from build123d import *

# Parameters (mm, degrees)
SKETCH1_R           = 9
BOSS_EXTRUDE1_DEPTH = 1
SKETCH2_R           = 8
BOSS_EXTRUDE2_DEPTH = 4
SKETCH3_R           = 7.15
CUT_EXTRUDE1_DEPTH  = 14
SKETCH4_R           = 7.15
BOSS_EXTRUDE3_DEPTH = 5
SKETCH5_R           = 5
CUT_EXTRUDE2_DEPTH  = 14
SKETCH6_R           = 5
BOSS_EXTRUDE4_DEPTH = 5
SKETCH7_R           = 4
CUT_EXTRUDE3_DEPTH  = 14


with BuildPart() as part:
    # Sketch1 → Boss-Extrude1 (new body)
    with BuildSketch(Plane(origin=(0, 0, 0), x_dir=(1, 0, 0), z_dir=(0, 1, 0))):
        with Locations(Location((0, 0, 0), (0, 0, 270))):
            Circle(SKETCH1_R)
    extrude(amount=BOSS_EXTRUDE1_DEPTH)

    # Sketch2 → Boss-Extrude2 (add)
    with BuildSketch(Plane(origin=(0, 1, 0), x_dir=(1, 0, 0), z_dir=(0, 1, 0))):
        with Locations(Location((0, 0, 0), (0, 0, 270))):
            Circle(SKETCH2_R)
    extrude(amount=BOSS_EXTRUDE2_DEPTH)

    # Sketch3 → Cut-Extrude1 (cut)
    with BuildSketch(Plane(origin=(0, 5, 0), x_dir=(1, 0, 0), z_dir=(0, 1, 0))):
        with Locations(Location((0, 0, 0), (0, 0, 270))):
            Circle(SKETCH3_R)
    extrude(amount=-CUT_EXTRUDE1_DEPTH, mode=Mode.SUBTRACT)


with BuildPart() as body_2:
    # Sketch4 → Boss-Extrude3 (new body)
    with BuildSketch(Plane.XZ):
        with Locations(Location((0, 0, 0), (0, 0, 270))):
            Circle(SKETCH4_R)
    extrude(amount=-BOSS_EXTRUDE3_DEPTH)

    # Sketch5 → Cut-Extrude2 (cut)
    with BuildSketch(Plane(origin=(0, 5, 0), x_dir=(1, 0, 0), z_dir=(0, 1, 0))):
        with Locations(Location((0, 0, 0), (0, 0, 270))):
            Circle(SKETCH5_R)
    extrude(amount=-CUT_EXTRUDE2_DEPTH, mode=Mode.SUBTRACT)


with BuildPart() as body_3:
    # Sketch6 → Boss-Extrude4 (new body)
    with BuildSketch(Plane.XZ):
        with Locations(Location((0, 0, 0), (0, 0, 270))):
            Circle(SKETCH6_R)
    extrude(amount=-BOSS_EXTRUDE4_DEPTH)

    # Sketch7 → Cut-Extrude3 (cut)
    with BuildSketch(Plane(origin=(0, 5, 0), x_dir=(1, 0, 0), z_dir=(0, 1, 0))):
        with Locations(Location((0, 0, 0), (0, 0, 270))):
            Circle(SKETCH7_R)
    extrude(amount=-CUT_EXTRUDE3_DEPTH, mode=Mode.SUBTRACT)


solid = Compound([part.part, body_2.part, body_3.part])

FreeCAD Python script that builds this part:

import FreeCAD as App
import Part
import Sketcher
from FreeCAD import Vector

doc = App.newDocument("Part")
body = doc.addObject("PartDesign::Body", "Body")

# Sketch on XZ plane
sketch1 = body.newObject("Sketcher::SketchObject", "Sketch")
sketch1.AttachmentSupport = (doc.getObject("XZ_Plane"), [""])
sketch1.MapMode = "FlatFace"
sketch1.addGeometry(Part.Circle(Vector(0, 0, 0), Vector(0, 0, 1), 9), False)
sketch1.addConstraint(Sketcher.Constraint("Coincident", 0, 3, -1, 1))
sketch1.addConstraint(Sketcher.Constraint("Diameter", 0, 18.0))
pad1 = body.newObject("PartDesign::Pad", "Pad")
pad1.Profile = sketch1
pad1.Length = 1
pad1.Reversed = True

# Sketch on XZ plane
sketch2 = body.newObject("Sketcher::SketchObject", "Sketch001")
sketch2.AttachmentSupport = (doc.getObject("XZ_Plane"), [""])
sketch2.MapMode = "FlatFace"
sketch2.AttachmentOffset = App.Placement(Vector(0, 0, -1), App.Rotation())
sketch2.addGeometry(Part.Circle(Vector(0, 0, 0), Vector(0, 0, 1), 8), False)
sketch2.addConstraint(Sketcher.Constraint("Coincident", 0, 3, -1, 1))
sketch2.addConstraint(Sketcher.Constraint("Diameter", 0, 16.0))
pad2 = body.newObject("PartDesign::Pad", "Pad001")
pad2.Profile = sketch2
pad2.Length = 4
pad2.Reversed = True

# Sketch on XZ plane
sketch3 = body.newObject("Sketcher::SketchObject", "Sketch002")
sketch3.AttachmentSupport = (doc.getObject("XZ_Plane"), [""])
sketch3.MapMode = "FlatFace"
sketch3.AttachmentOffset = App.Placement(Vector(0, 0, -5), App.Rotation())
sketch3.addGeometry(Part.Circle(Vector(0, 0, 0), Vector(0, 0, 1), 7), False)
sketch3.addConstraint(Sketcher.Constraint("Coincident", 0, 3, -1, 1))
sketch3.addConstraint(Sketcher.Constraint("Diameter", 0, 14.3))
pocket1 = body.newObject("PartDesign::Pocket", "Pocket")
pocket1.Profile = sketch3
pocket1.Length = 14
pocket1.Reversed = True
body2 = doc.addObject("PartDesign::Body", "Body001")

# Sketch on XZ plane
sketch4 = body2.newObject("Sketcher::SketchObject", "Sketch003")
sketch4.AttachmentSupport = (doc.getObject("XZ_Plane001"), [""])
sketch4.MapMode = "FlatFace"
sketch4.addGeometry(Part.Circle(Vector(0, 0, 0), Vector(0, 0, 1), 7), False)
sketch4.addConstraint(Sketcher.Constraint("Coincident", 0, 3, -1, 1))
sketch4.addConstraint(Sketcher.Constraint("Diameter", 0, 14.3))
pad3 = body2.newObject("PartDesign::Pad", "Pad002")
pad3.Profile = sketch4
pad3.Length = 5
pad3.Reversed = True

# Sketch on XZ plane
sketch5 = body2.newObject("Sketcher::SketchObject", "Sketch004")
sketch5.AttachmentSupport = (doc.getObject("XZ_Plane001"), [""])
sketch5.MapMode = "FlatFace"
sketch5.AttachmentOffset = App.Placement(Vector(0, 0, -5), App.Rotation())
sketch5.addGeometry(Part.Circle(Vector(0, 0, 0), Vector(0, 0, 1), 5), False)
sketch5.addConstraint(Sketcher.Constraint("Coincident", 0, 3, -1, 1))
sketch5.addConstraint(Sketcher.Constraint("Diameter", 0, 10.0))
pocket2 = body2.newObject("PartDesign::Pocket", "Pocket001")
pocket2.Profile = sketch5
pocket2.Length = 14
pocket2.Reversed = True
body3 = doc.addObject("PartDesign::Body", "Body002")

# Sketch on XZ plane
sketch6 = body3.newObject("Sketcher::SketchObject", "Sketch005")
sketch6.AttachmentSupport = (doc.getObject("XZ_Plane002"), [""])
sketch6.MapMode = "FlatFace"
sketch6.addGeometry(Part.Circle(Vector(0, 0, 0), Vector(0, 0, 1), 5), False)
sketch6.addConstraint(Sketcher.Constraint("Coincident", 0, 3, -1, 1))
sketch6.addConstraint(Sketcher.Constraint("Diameter", 0, 10.0))
pad4 = body3.newObject("PartDesign::Pad", "Pad003")
pad4.Profile = sketch6
pad4.Length = 5
pad4.Reversed = True

# Sketch on XZ plane
sketch7 = body3.newObject("Sketcher::SketchObject", "Sketch006")
sketch7.AttachmentSupport = (doc.getObject("XZ_Plane002"), [""])
sketch7.MapMode = "FlatFace"
sketch7.AttachmentOffset = App.Placement(Vector(0, 0, -5), App.Rotation())
sketch7.addGeometry(Part.Circle(Vector(0, 0, 0), Vector(0, 0, 1), 4), False)
sketch7.addConstraint(Sketcher.Constraint("Coincident", 0, 3, -1, 1))
sketch7.addConstraint(Sketcher.Constraint("Diameter", 0, 8.0))
pocket3 = body3.newObject("PartDesign::Pocket", "Pocket002")
pocket3.Profile = sketch7
pocket3.Length = 14
pocket3.Reversed = True

doc.recompute()
